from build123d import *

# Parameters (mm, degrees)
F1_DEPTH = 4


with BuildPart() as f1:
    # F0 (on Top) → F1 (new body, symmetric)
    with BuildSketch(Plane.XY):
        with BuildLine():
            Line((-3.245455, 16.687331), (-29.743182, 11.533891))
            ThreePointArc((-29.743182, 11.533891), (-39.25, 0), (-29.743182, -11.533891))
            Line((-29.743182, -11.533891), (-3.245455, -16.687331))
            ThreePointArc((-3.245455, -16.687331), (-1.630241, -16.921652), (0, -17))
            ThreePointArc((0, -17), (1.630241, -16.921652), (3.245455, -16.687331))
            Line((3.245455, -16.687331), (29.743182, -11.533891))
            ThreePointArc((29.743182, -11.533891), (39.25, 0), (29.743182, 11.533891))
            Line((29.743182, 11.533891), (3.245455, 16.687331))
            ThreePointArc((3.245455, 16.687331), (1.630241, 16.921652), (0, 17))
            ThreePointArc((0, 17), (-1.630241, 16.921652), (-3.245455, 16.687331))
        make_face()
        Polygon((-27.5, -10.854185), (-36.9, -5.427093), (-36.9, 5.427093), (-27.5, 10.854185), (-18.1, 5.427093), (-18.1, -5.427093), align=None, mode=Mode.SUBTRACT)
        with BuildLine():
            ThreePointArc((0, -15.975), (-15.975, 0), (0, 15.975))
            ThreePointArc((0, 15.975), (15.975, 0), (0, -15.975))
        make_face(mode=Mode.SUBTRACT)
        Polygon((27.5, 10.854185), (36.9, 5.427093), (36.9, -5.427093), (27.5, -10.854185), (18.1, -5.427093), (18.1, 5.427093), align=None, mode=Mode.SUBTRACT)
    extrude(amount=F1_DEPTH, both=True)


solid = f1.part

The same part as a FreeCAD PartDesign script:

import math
import FreeCAD as App
import Part
import Sketcher
Q = App.Units.Quantity


def add_polygon(sketch, points):
    """Adds a closed chain of lines whose ends are joined by coincident constraints."""
    first, n = sketch.GeometryCount, len(points)
    for a, b in zip(points, points[1:] + points[:1]):
        sketch.addGeometry(Part.LineSegment(App.Vector(*a, 0), App.Vector(*b, 0)), False)
    for i in range(n):
        sketch.addConstraint(Sketcher.Constraint("Coincident", first + i, 2, first + (i + 1) % n, 1))

doc = App.newDocument("Part")
params = doc.addObject("Spreadsheet::Sheet", "Params")
for row, (alias, value) in enumerate([
    ("sketch1_diameter", "31.95 mm"),
    ("sketch1_radius", "11.75 mm"),
    ("pad1_length", "8 mm"),
], start=1):
    params.set(f"A{row}", alias)
    params.set(f"B{row}", "=" + value)
    params.setAlias(f"B{row}", alias)

body = doc.addObject("PartDesign::Body", "Body")

# Sketch on XY plane
sketch1 = body.newObject("Sketcher::SketchObject", "Sketch")
sketch1.AttachmentSupport = (doc.getObject("XY_Plane"), [""])
sketch1.MapMode = "FlatFace"
sketch1.addGeometry(Part.LineSegment(App.Vector(-3.2, 16.7, 0), App.Vector(-29.7, 11.5, 0)), False)  # 0
sketch1.addGeometry(Part.ArcOfCircle(Part.Circle(App.Vector(-27.5, 0, 0), App.Vector(0, 0, 1), 11.8), math.radians(101), math.radians(259)), False)  # 1
sketch1.addGeometry(Part.LineSegment(App.Vector(-29.7, -11.5, 0), App.Vector(-3.2, -16.7, 0)), False)  # 2
sketch1.addGeometry(Part.ArcOfCircle(Part.Circle(App.Vector(0, 0, 0), App.Vector(0, 0, 1), 17), math.radians(-101.01), math.radians(-90)), False)  # 3
sketch1.addGeometry(Part.ArcOfCircle(Part.Circle(App.Vector(0, 0, 0), App.Vector(0, 0, 1), 17), math.radians(-90), math.radians(-78.99)), False)  # 4
sketch1.addGeometry(Part.LineSegment(App.Vector(3.2, -16.7, 0), App.Vector(29.7, -11.5, 0)), False)  # 5
sketch1.addGeometry(Part.ArcOfCircle(Part.Circle(App.Vector(27.5, 0, 0), App.Vector(0, 0, 1), 11.8), math.radians(-79), math.radians(79)), False)  # 6
sketch1.addGeometry(Part.LineSegment(App.Vector(29.7, 11.5, 0), App.Vector(3.2, 16.7, 0)), False)  # 7
sketch1.addGeometry(Part.ArcOfCircle(Part.Circle(App.Vector(0, 0, 0), App.Vector(0, 0, 1), 17), math.radians(78.99), math.radians(90)), False)  # 8
sketch1.addGeometry(Part.ArcOfCircle(Part.Circle(App.Vector(0, 0, 0), App.Vector(0, 0, 1), 17), math.radians(90), math.radians(101.01)), False)  # 9
add_polygon(sketch1, [(-18.1, -5.4), (-27.5, -10.9), (-36.9, -5.4), (-36.9, 5.4), (-27.5, 10.9), (-18.1, 5.4)])  # lines 10-15
sketch1.addGeometry(Part.Circle(App.Vector(0, 0, 0), App.Vector(0, 0, 1), 16), False)  # 16
add_polygon(sketch1, [(18.1, 5.4), (27.5, 10.9), (36.9, 5.4), (36.9, -5.4), (27.5, -10.9), (18.1, -5.4)])  # lines 17-22
sketch1.addConstraint(Sketcher.Constraint("Tangent", 0, 2, 1, 1))
sketch1.addConstraint(Sketcher.Constraint("Tangent", 1, 2, 2, 1))
sketch1.addConstraint(Sketcher.Constraint("Tangent", 2, 2, 3, 1))
sketch1.addConstraint(Sketcher.Constraint("Tangent", 3, 2, 4, 1))
sketch1.addConstraint(Sketcher.Constraint("Tangent", 4, 2, 5, 1))
sketch1.addConstraint(Sketcher.Constraint("Tangent", 5, 2, 6, 1))
sketch1.addConstraint(Sketcher.Constraint("Tangent", 6, 2, 7, 1))
sketch1.addConstraint(Sketcher.Constraint("Tangent", 7, 2, 8, 1))
sketch1.addConstraint(Sketcher.Constraint("Tangent", 8, 2, 9, 1))
sketch1.addConstraint(Sketcher.Constraint("Tangent", 9, 2, 0, 1))
sketch1.addConstraint(Sketcher.Constraint("Vertical", 12))
sketch1.addConstraint(Sketcher.Constraint("Vertical", 15))
sketch1.addConstraint(Sketcher.Constraint("Vertical", 19))
sketch1.addConstraint(Sketcher.Constraint("Vertical", 22))
sketch1.addConstraint(Sketcher.Constraint("Coincident", 16, 3, -1, 1))
sketch1.addConstraint(Sketcher.Constraint("Equal", 3, 4))
sketch1.addConstraint(Sketcher.Constraint("Equal", 1, 6))
sketch1.addConstraint(Sketcher.Constraint("Equal", 4, 8))
sketch1.addConstraint(Sketcher.Constraint("Equal", 8, 9))
sketch1.addConstraint(Sketcher.Constraint("Symmetric", 1, 3, 6, 3, -1, 1))
sketch1.addConstraint(Sketcher.Constraint("Symmetric", 3, 3, 8, 3, -1, 1))
sketch1.addConstraint(Sketcher.Constraint("Symmetric", 10, 2, 17, 2, -1, 1))
sketch1.addConstraint(Sketcher.Constraint("Symmetric", 11, 2, 18, 2, -1, 1))
sketch1.addConstraint(Sketcher.Constraint("Symmetric", 13, 2, 20, 2, -1, 1))
sketch1.addConstraint(Sketcher.Constraint("Symmetric", 14, 2, 21, 2, -1, 1))
sketch1.addConstraint(Sketcher.Constraint("Symmetric", 2, 2, 4, 2, -2))
sketch1.addConstraint(Sketcher.Constraint("Symmetric", 13, 2, 17, 2, -2))
sketch1.addConstraint(Sketcher.Constraint("PointOnObject", 3, 2, -2))
sketch1.addConstraint(Sketcher.Constraint("PointOnObject", 8, 2, -2))
sketch1.addConstraint(Sketcher.Constraint("Parallel", 10, 13))
sketch1.addConstraint(Sketcher.Constraint("Parallel", 11, 14))
sketch1.addConstraint(Sketcher.Constraint("Parallel", 13, 17))
sketch1.addConstraint(Sketcher.Constraint("Parallel", 17, 20))
sketch1.addConstraint(Sketcher.Constraint("Horizontal", 12, 2, 14, 2))
sketch1.addConstraint(Sketcher.Constraint("Horizontal", 11, 2, 15, 2))
sketch1.addConstraint(Sketcher.Constraint("Vertical", 1, 3, 10, 2))
sketch1.addConstraint(Sketcher.Constraint("Diameter", 16, 31.95))
sketch1.addConstraint(Sketcher.Constraint("Angle", 10, Q("-150.000002 deg")))
sketch1.addConstraint(Sketcher.Constraint("Radius", 1, 11.75))
sketch1.addConstraint(Sketcher.Constraint("DistanceY", 3, 2, -1, 1, 17.0))
sketch1.addConstraint(Sketcher.Constraint("DistanceX", 1, 3, 6, 3, 54.999999))
sketch1.addConstraint(Sketcher.Constraint("DistanceX", 11, 2, -1, 1, 36.9))
sketch1.addConstraint(Sketcher.Constraint("Radius", 3, 17.000031))
sketch1.addConstraint(Sketcher.Constraint("DistanceY", 1, 2, 11, 2, 6.106798))
sketch1.setExpression("Constraints[48]", "Params.sketch1_diameter")
sketch1.setExpression("Constraints[50]", "Params.sketch1_radius")
pad1 = body.newObject("PartDesign::Pad", "Pad")
pad1.Profile = sketch1
pad1.setExpression("Length", "Params.pad1_length")
pad1.Midplane = True

doc.recompute()
